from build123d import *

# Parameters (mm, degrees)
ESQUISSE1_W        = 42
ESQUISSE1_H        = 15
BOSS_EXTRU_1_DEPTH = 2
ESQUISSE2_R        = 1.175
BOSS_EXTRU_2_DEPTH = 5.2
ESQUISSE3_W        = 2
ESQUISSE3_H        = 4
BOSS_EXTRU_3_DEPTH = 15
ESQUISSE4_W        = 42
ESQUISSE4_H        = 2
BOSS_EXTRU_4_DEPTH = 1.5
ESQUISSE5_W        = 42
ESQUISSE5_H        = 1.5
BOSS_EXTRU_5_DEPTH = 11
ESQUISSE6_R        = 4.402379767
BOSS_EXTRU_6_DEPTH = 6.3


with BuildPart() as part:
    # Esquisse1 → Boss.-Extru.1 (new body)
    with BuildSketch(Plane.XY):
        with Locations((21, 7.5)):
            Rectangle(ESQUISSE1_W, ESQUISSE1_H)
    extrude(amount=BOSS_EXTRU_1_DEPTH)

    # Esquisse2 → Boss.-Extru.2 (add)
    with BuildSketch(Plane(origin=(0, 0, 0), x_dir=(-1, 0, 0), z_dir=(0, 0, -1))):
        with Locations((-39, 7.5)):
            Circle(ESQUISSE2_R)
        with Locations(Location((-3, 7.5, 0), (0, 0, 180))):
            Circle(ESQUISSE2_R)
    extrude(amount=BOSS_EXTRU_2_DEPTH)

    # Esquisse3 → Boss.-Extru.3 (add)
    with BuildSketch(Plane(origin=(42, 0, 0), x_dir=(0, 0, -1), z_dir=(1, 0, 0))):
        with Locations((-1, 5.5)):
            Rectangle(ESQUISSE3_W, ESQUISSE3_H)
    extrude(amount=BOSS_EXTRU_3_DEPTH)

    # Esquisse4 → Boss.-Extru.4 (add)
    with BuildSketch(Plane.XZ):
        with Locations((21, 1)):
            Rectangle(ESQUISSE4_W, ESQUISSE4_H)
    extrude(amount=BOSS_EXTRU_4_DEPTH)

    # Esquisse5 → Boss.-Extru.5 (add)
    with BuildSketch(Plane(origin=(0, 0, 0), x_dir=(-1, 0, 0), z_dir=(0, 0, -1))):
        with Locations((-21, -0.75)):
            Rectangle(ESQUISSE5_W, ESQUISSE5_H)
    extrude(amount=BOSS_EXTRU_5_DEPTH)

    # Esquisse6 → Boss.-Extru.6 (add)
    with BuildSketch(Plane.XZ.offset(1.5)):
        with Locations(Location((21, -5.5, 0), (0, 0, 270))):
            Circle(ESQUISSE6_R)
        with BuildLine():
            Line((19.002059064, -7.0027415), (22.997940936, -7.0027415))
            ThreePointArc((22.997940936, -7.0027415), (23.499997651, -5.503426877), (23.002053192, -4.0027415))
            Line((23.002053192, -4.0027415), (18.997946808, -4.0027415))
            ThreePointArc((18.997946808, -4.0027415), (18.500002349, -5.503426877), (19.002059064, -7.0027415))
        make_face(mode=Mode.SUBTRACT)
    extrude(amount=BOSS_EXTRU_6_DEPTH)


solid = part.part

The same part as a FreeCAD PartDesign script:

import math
import FreeCAD as App
import Part
import Sketcher


def add_polygon(sketch, points):
    """Adds a closed chain of lines whose ends are joined by coincident constraints."""
    first, n = sketch.GeometryCount, len(points)
    for a, b in zip(points, points[1:] + points[:1]):
        sketch.addGeometry(Part.LineSegment(App.Vector(*a, 0), App.Vector(*b, 0)), False)
    for i in range(n):
        sketch.addConstraint(Sketcher.Constraint("Coincident", first + i, 2, first + (i + 1) % n, 1))

doc = App.newDocument("Part")
params = doc.addObject("Spreadsheet::Sheet", "Params")
for row, (alias, value) in enumerate([
    ("sketch1_width", "42 mm"),
    ("sketch1_height", "15 mm"),
    ("pad1_length", "2 mm"),
    ("sketch2_diameter", "2.35 mm"),
    ("pad2_length", "5.2 mm"),
    ("sketch3_width", "4 mm"),
    ("sketch3_height", "2 mm"),
    ("pad3_length", "15 mm"),
    ("sketch4_width", "42 mm"),
    ("sketch4_height", "2 mm"),
    ("pad4_length", "1.5 mm"),
    ("sketch5_width", "42 mm"),
    ("sketch5_height", "1.5 mm"),
    ("pad5_length", "11 mm"),
    ("sketch6_radius", "2.5 mm"),
    ("pad6_length", "6.3 mm"),
], start=1):
    params.set(f"A{row}", alias)
    params.set(f"B{row}", "=" + value)
    params.setAlias(f"B{row}", alias)

body = doc.addObject("PartDesign::Body", "Body")

# Sketch on XY plane
sketch1 = doc.addObject("Sketcher::SketchObject", "Sketch")
body.addObject(sketch1)
sketch1.AttachmentSupport = (doc.XY_Plane, [""])
sketch1.MapMode = "FlatFace"
add_polygon(sketch1, [(0, 15), (0, 0), (42, 0), (42, 15)])  # lines 0-3
sketch1.addConstraint(Sketcher.Constraint("Vertical", 0))
sketch1.addConstraint(Sketcher.Constraint("Horizontal", 1))
sketch1.addConstraint(Sketcher.Constraint("Vertical", 2))
sketch1.addConstraint(Sketcher.Constraint("Horizontal", 3))
sketch1.addConstraint(Sketcher.Constraint("Coincident", 0, 2, -1, 1))
sketch1.addConstraint(Sketcher.Constraint("DistanceX", 1, 1, 1, 2, 42.0))
sketch1.addConstraint(Sketcher.Constraint("DistanceY", 0, 2, 0, 1, 15.0))
sketch1.setExpression("Constraints[9]", "Params.sketch1_width")
sketch1.setExpression("Constraints[10]", "Params.sketch1_height")
pad1 = doc.addObject("PartDesign::Pad", "Pad")
body.addObject(pad1)
pad1.Profile = sketch1
pad1.setExpression("Length", "Params.pad1_length")

# Sketch on XY plane
sketch2 = doc.addObject("Sketcher::SketchObject", "Sketch001")
body.addObject(sketch2)
sketch2.AttachmentSupport = (doc.XY_Plane, [""])
sketch2.MapMode = "FlatFace"
sketch2.addGeometry(Part.Circle(App.Vector(39, 7.5, 0), App.Vector(0, 0, 1), 1.175), False)
sketch2.addGeometry(Part.Circle(App.Vector(3, 7.5, 0), App.Vector(0, 0, 1), 1.175), False)
sketch2.addConstraint(Sketcher.Constraint("Equal", 0, 1))
sketch2.addConstraint(Sketcher.Constraint("Horizontal", 0, 3, 1, 3))
sketch2.addConstraint(Sketcher.Constraint("Diameter", 0, 2.35))
sketch2.addConstraint(Sketcher.Constraint("DistanceX", -1, 1, 0, 3, 39.0))
sketch2.addConstraint(Sketcher.Constraint("DistanceX", -1, 1, 1, 3, 3.0))
sketch2.addConstraint(Sketcher.Constraint("DistanceY", -1, 1, 0, 3, 7.5))
sketch2.setExpression("Constraints[2]", "Params.sketch2_diameter")
pad2 = doc.addObject("PartDesign::Pad", "Pad001")
body.addObject(pad2)
pad2.Profile = sketch2
pad2.setExpression("Length", "Params.pad2_length")
pad2.Reversed = True

# Sketch on YZ plane
sketch3 = doc.addObject("Sketcher::SketchObject", "Sketch002")
body.addObject(sketch3)
sketch3.AttachmentSupport = (doc.YZ_Plane, [""])
sketch3.MapMode = "FlatFace"
sketch3.AttachmentOffset = App.Placement(App.Vector(0, 0, 42), App.Rotation())
add_polygon(sketch3, [(7.5, 2), (3.5, 2), (3.5, 0), (7.5, 0)])  # lines 0-3
sketch3.addConstraint(Sketcher.Constraint("Horizontal", 0))
sketch3.addConstraint(Sketcher.Constraint("Vertical", 1))
sketch3.addConstraint(Sketcher.Constraint("Horizontal", 2))
sketch3.addConstraint(Sketcher.Constraint("Vertical", 3))
sketch3.addConstraint(Sketcher.Constraint("PointOnObject", 1, 2, -1))
sketch3.addConstraint(Sketcher.Constraint("DistanceX", 0, 2, 0, 1, 4.0))
sketch3.addConstraint(Sketcher.Constraint("DistanceY", 1, 2, 1, 1, 2.0))
sketch3.addConstraint(Sketcher.Constraint("DistanceX", -1, 1, 0, 2, 3.5))
sketch3.setExpression("Constraints[9]", "Params.sketch3_width")
sketch3.setExpression("Constraints[10]", "Params.sketch3_height")
pad3 = doc.addObject("PartDesign::Pad", "Pad002")
body.addObject(pad3)
pad3.Profile = sketch3
pad3.setExpression("Length", "Params.pad3_length")

# Sketch on XZ plane
sketch4 = doc.addObject("Sketcher::SketchObject", "Sketch003")
body.addObject(sketch4)
sketch4.AttachmentSupport = (doc.XZ_Plane, [""])
sketch4.MapMode = "FlatFace"
add_polygon(sketch4, [(0, 2), (0, 0), (42, 0), (42, 2)])  # lines 0-3
sketch4.addConstraint(Sketcher.Constraint("Vertical", 0))
sketch4.addConstraint(Sketcher.Constraint("Horizontal", 1))
sketch4.addConstraint(Sketcher.Constraint("Vertical", 2))
sketch4.addConstraint(Sketcher.Constraint("Horizontal", 3))
sketch4.addConstraint(Sketcher.Constraint("Coincident", 0, 2, -1, 1))
sketch4.addConstraint(Sketcher.Constraint("DistanceX", 1, 1, 1, 2, 42.0))
sketch4.addConstraint(Sketcher.Constraint("DistanceY", 0, 2, 0, 1, 2.0))
sketch4.setExpression("Constraints[9]", "Params.sketch4_width")
sketch4.setExpression("Constraints[10]", "Params.sketch4_height")
pad4 = doc.addObject("PartDesign::Pad", "Pad003")
body.addObject(pad4)
pad4.Profile = sketch4
pad4.setExpression("Length", "Params.pad4_length")

# Sketch on XY plane
sketch5 = doc.addObject("Sketcher::SketchObject", "Sketch004")
body.addObject(sketch5)
sketch5.AttachmentSupport = (doc.XY_Plane, [""])
sketch5.MapMode = "FlatFace"
add_polygon(sketch5, [(42, 0), (42, -1.5), (0, -1.5), (0, 0)])  # lines 0-3
sketch5.addConstraint(Sketcher.Constraint("Vertical", 0))
sketch5.addConstraint(Sketcher.Constraint("Horizontal", 1))
sketch5.addConstraint(Sketcher.Constraint("Vertical", 2))
sketch5.addConstraint(Sketcher.Constraint("Horizontal", 3))
sketch5.addConstraint(Sketcher.Constraint("Coincident", 2, 2, -1, 1))
sketch5.addConstraint(Sketcher.Constraint("DistanceX", 1, 2, 1, 1, 42.0))
sketch5.addConstraint(Sketcher.Constraint("DistanceY", 0, 2, 0, 1, 1.5))
sketch5.setExpression("Constraints[9]", "Params.sketch5_width")
sketch5.setExpression("Constraints[10]", "Params.sketch5_height")
pad5 = doc.addObject("PartDesign::Pad", "Pad004")
body.addObject(pad5)
pad5.Profile = sketch5
pad5.setExpression("Length", "Params.pad5_length")
pad5.Reversed = True

# Sketch on XZ plane
sketch6 = doc.addObject("Sketcher::SketchObject", "Sketch005")
body.addObject(sketch6)
sketch6.AttachmentSupport = (doc.XZ_Plane, [""])
sketch6.MapMode = "FlatFace"
sketch6.AttachmentOffset = App.Placement(App.Vector(0, 0, 1.5), App.Rotation())
sketch6.addGeometry(Part.Circle(App.Vector(21, -5.5, 0), App.Vector(0, 0, 1), 4.40238), False)
sketch6.addGeometry(Part.LineSegment(App.Vector(22.997941, -7.002741, 0), App.Vector(19.002059, -7.002741, 0)), False)
sketch6.addGeometry(Part.ArcOfCircle(Part.Circle(App.Vector(21, -5.5, 0), App.Vector(0, 0, 1), 2.5), math.radians(143.2086), math.radians(216.948476)), False)
sketch6.addGeometry(Part.LineSegment(App.Vector(18.997947, -4.002741, 0), App.Vector(23.002053, -4.002741, 0)), False)
sketch6.addGeometry(Part.ArcOfCircle(Part.Circle(App.Vector(21, -5.5, 0), App.Vector(0, 0, 1), 2.5), math.radians(-36.948476), math.radians(36.7914)), False)
sketch6.addConstraint(Sketcher.Constraint("Coincident", 1, 2, 2, 2))
sketch6.addConstraint(Sketcher.Constraint("Coincident", 2, 1, 3, 1))
sketch6.addConstraint(Sketcher.Constraint("Coincident", 3, 2, 4, 2))
sketch6.addConstraint(Sketcher.Constraint("Coincident", 4, 1, 1, 1))
sketch6.addConstraint(Sketcher.Constraint("Horizontal", 1))
sketch6.addConstraint(Sketcher.Constraint("Horizontal", 3))
sketch6.addConstraint(Sketcher.Constraint("Coincident", 2, 3, 0, 3))
sketch6.addConstraint(Sketcher.Constraint("Coincident", 4, 3, 0, 3))
sketch6.addConstraint(Sketcher.Constraint("Equal", 2, 4))
sketch6.addConstraint(Sketcher.Constraint("Radius", 2, 2.5))
sketch6.addConstraint(Sketcher.Constraint("DistanceX", -1, 1, 0, 3, 21.0))
sketch6.addConstraint(Sketcher.Constraint("DistanceY", 1, 2, 2, 1, 3.0))
sketch6.addConstraint(Sketcher.Constraint("DistanceY", 0, 3, -1, 1, 5.5))
sketch6.addConstraint(Sketcher.Constraint("Diameter", 0, 8.80476))
sketch6.addConstraint(Sketcher.Constraint("DistanceX", 1, 2, 1, 1, 3.995882))
sketch6.setExpression("Constraints[9]", "Params.sketch6_radius")
pad6 = doc.addObject("PartDesign::Pad", "Pad005")
body.addObject(pad6)
pad6.Profile = sketch6
pad6.setExpression("Length", "Params.pad6_length")

doc.recompute()
